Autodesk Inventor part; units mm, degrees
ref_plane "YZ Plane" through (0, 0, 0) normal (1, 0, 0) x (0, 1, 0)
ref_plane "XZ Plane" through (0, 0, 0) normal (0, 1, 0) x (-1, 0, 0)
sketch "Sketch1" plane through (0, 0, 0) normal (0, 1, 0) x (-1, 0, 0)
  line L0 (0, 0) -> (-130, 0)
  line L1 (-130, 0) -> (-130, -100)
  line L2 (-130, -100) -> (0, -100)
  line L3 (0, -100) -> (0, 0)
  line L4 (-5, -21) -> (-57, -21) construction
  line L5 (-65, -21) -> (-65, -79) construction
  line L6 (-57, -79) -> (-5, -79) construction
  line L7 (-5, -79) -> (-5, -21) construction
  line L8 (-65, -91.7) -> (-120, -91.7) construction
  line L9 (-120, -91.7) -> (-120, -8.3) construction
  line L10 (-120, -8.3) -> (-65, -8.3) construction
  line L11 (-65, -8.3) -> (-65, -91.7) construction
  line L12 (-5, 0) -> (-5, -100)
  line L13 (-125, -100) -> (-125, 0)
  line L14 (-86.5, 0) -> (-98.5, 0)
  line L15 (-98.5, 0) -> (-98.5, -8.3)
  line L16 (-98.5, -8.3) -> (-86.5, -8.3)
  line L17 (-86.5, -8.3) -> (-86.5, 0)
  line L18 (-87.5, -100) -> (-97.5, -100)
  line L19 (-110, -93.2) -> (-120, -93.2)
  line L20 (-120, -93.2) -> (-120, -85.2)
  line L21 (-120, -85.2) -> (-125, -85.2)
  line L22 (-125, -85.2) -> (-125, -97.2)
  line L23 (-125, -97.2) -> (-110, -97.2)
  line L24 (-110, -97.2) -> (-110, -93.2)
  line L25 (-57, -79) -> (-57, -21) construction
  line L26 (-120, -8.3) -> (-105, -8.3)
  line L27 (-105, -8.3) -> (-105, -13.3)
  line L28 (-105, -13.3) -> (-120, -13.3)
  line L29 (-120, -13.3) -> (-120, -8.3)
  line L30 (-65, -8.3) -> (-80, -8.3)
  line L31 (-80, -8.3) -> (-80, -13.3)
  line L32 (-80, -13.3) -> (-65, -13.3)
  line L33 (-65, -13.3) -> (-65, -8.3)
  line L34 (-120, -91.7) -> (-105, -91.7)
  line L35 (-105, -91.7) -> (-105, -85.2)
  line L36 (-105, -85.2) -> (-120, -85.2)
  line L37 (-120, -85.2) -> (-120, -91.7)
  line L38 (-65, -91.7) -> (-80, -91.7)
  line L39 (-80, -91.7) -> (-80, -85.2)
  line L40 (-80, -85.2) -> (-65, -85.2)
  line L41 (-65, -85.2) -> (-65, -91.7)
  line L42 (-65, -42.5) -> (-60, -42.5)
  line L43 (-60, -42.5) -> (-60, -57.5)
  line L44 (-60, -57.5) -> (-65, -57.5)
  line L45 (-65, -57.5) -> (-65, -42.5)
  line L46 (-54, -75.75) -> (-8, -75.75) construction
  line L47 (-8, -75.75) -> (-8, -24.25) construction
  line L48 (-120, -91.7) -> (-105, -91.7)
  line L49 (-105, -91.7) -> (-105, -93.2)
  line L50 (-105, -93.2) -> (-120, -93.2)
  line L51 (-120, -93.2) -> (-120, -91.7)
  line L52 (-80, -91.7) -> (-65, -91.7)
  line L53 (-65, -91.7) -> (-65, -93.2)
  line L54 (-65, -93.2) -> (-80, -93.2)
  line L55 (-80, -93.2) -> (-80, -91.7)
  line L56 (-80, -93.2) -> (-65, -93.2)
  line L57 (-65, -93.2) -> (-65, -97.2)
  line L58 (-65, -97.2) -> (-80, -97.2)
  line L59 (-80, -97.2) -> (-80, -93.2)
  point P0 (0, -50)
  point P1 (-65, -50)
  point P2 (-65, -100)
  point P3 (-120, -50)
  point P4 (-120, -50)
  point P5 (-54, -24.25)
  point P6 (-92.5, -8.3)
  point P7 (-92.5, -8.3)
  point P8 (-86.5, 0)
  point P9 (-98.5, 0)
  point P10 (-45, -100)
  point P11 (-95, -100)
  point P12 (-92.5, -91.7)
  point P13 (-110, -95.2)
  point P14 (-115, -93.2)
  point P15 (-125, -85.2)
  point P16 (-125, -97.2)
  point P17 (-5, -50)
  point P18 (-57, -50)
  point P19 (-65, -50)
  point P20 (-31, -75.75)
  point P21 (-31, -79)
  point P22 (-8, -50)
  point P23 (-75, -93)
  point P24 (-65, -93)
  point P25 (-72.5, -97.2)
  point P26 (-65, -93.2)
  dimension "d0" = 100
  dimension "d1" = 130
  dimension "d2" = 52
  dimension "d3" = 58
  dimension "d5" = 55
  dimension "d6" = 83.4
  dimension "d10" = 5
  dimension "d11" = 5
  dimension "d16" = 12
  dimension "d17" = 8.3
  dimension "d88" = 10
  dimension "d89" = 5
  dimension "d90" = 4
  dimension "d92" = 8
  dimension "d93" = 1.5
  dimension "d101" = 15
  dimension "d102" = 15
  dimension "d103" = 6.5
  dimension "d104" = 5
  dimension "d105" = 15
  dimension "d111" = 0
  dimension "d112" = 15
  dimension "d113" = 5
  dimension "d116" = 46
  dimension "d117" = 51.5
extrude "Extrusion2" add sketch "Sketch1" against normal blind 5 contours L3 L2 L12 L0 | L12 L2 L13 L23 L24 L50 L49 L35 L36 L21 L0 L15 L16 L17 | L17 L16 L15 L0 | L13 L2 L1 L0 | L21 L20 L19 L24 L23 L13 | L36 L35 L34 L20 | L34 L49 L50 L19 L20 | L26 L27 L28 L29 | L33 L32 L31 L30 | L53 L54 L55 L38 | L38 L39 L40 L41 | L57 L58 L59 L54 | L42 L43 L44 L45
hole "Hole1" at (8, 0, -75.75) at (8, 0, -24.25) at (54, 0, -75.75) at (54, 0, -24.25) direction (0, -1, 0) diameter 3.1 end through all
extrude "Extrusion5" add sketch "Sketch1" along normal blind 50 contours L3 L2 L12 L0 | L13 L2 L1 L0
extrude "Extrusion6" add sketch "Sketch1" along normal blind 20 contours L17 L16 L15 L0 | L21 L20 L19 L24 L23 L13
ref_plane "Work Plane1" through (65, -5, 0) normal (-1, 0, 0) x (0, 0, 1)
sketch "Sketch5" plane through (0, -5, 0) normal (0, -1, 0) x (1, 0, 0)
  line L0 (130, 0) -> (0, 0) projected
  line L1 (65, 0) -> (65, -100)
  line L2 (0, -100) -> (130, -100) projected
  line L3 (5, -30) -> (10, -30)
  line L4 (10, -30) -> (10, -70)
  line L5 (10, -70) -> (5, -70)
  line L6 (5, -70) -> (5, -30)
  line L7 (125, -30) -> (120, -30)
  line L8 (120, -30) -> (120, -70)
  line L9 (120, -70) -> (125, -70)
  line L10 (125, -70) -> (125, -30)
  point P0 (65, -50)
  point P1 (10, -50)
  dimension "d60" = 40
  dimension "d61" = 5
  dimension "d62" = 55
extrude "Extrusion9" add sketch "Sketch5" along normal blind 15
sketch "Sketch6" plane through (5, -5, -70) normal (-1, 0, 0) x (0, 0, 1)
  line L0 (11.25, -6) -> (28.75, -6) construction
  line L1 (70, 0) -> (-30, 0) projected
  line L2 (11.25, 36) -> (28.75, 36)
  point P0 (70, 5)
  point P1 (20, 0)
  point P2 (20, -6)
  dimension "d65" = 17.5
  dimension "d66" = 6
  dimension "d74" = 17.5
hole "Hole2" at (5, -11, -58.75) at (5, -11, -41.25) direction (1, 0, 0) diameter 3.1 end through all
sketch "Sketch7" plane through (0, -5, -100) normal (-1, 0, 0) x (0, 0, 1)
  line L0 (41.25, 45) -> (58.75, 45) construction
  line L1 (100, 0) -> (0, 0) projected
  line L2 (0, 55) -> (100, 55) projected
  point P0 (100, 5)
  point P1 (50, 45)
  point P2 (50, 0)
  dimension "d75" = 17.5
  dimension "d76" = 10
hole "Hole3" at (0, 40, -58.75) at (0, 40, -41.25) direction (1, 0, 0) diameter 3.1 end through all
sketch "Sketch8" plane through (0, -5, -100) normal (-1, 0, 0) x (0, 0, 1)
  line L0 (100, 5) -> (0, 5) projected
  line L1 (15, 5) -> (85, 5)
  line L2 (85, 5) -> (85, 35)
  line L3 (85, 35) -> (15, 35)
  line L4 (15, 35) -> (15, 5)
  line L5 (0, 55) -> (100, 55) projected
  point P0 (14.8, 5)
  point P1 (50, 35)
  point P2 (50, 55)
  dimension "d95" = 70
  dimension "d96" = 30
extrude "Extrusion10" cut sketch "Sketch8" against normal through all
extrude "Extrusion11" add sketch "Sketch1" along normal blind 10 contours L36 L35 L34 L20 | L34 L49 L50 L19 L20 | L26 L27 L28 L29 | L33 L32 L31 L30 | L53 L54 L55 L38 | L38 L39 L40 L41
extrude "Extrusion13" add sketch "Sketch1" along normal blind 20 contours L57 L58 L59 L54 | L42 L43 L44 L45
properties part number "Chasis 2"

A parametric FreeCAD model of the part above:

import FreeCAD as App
import Part
import Sketcher
from FreeCAD import Vector


def add_polygon(sketch, points):
    """Adds a closed chain of lines whose ends are joined by coincident constraints."""
    first, n = sketch.GeometryCount, len(points)
    for a, b in zip(points, points[1:] + points[:1]):
        sketch.addGeometry(Part.LineSegment(App.Vector(*a, 0), App.Vector(*b, 0)), False)
    for i in range(n):
        sketch.addConstraint(Sketcher.Constraint("Coincident", first + i, 2, first + (i + 1) % n, 1))

doc = App.newDocument("Part")
params = doc.addObject("Spreadsheet::Sheet", "Params")
for row, (alias, value) in enumerate([
    ("sketch1_width", "130 mm"),
    ("sketch1_height", "100 mm"),
    ("pad1_length", "5 mm"),
    ("sketch2_diameter", "3.1 mm"),
    ("hole_diameter", "3.1 mm"),
    ("sketch3_width", "5 mm"),
    ("sketch3_height", "100 mm"),
    ("pad2_length", "50 mm"),
    ("sketch4_width", "12 mm"),
    ("sketch4_width2", "5 mm"),
    ("sketch4_width3", "15 mm"),
    ("sketch4_height", "4 mm"),
    ("sketch4_height2", "8.3 mm"),
    ("pad3_length", "20 mm"),
    ("sketch5_width", "5 mm"),
    ("sketch5_height", "40 mm"),
    ("pad4_length", "15 mm"),
    ("sketch6_diameter", "3.1 mm"),
    ("hole2_diameter", "3.1 mm"),
    ("sketch7_diameter", "3.1 mm"),
    ("hole3_diameter", "3.1 mm"),
    ("sketch8_width", "30 mm"),
    ("sketch8_height", "70 mm"),
    ("sketch9_width", "15 mm"),
    ("sketch9_height", "8 mm"),
    ("sketch9_height2", "5 mm"),
    ("pad5_length", "10 mm"),
    ("sketch10_width", "15 mm"),
    ("sketch10_width2", "5 mm"),
    ("sketch10_height", "4 mm"),
    ("pad6_length", "20 mm"),
], start=1):
    params.set(f"A{row}", alias)
    params.set(f"B{row}", "=" + value)
    params.setAlias(f"B{row}", alias)

body = doc.addObject("PartDesign::Body", "Body")

sketch1 = doc.addObject("Sketcher::SketchObject", "Sketch")
body.addObject(sketch1)
sketch1.AttachmentSupport = (doc.XZ_Plane, [""])
sketch1.MapMode = "FlatFace"
add_polygon(sketch1, [(0, -100), (0, 0), (130, 0), (130, -100)])
sketch1.addConstraint(Sketcher.Constraint("Vertical", 0))
sketch1.addConstraint(Sketcher.Constraint("Horizontal", 1))
sketch1.addConstraint(Sketcher.Constraint("Vertical", 2))
sketch1.addConstraint(Sketcher.Constraint("Horizontal", 3))
sketch1.addConstraint(Sketcher.Constraint("Coincident", 0, 2, -1, 1))
sketch1.addConstraint(Sketcher.Constraint("DistanceX", 1, 1, 1, 2, 130.0))
sketch1.addConstraint(Sketcher.Constraint("DistanceY", 0, 1, 0, 2, 100.0))
sketch1.setExpression("Constraints[9]", "Params.sketch1_width")
sketch1.setExpression("Constraints[10]", "Params.sketch1_height")
pad1 = doc.addObject("PartDesign::Pad", "Pad")
body.addObject(pad1)
pad1.Profile = sketch1
pad1.setExpression("Length", "Params.pad1_length")

sketch2 = doc.addObject("Sketcher::SketchObject", "Sketch001")
body.addObject(sketch2)
sketch2.AttachmentSupport = (doc.XZ_Plane, [""])
sketch2.MapMode = "FlatFace"
sketch2.addGeometry(Part.Circle(Vector(8, -75.8, 0), Vector(0, 0, 1), 1.6), False)
sketch2.addGeometry(Part.Circle(Vector(8, -24.2, 0), Vector(0, 0, 1), 1.6), False)
sketch2.addGeometry(Part.Circle(Vector(54, -75.8, 0), Vector(0, 0, 1), 1.6), False)
sketch2.addGeometry(Part.Circle(Vector(54, -24.2, 0), Vector(0, 0, 1), 1.6), False)
sketch2.addConstraint(Sketcher.Constraint("Equal", 0, 1))
sketch2.addConstraint(Sketcher.Constraint("Equal", 1, 2))
sketch2.addConstraint(Sketcher.Constraint("Equal", 2, 3))
sketch2.addConstraint(Sketcher.Constraint("Horizontal", 0, 3, 2, 3))
sketch2.addConstraint(Sketcher.Constraint("Horizontal", 1, 3, 3, 3))
sketch2.addConstraint(Sketcher.Constraint("Vertical", 0, 3, 1, 3))
sketch2.addConstraint(Sketcher.Constraint("Vertical", 2, 3, 3, 3))
sketch2.addConstraint(Sketcher.Constraint("Diameter", 0, 3.1))
sketch2.addConstraint(Sketcher.Constraint("DistanceX", -1, 1, 0, 3, 8.0))
sketch2.addConstraint(Sketcher.Constraint("DistanceX", -1, 1, 2, 3, 54.0))
sketch2.addConstraint(Sketcher.Constraint("DistanceY", 0, 3, 1, 3, 51.5))
sketch2.addConstraint(Sketcher.Constraint("DistanceY", 0, 3, -1, 1, 75.75))
sketch2.setExpression("Constraints[7]", "Params.sketch2_diameter")
doc.recompute()
hole = doc.addObject("PartDesign::Hole", "Hole")
body.addObject(hole)
hole.Profile = sketch2
hole.ThreadType = "None"
hole.setExpression("Diameter", "Params.hole_diameter")
hole.DepthType = "ThroughAll"
hole.Reversed = True

sketch3 = doc.addObject("Sketcher::SketchObject", "Sketch002")
body.addObject(sketch3)
sketch3.AttachmentSupport = (doc.XZ_Plane, [""])
sketch3.MapMode = "FlatFace"
add_polygon(sketch3, [(0, -100), (0, 0), (5, 0), (5, -100)])
add_polygon(sketch3, [(125, -100), (125, 0), (130, 0), (130, -100)])
sketch3.addConstraint(Sketcher.Constraint("Vertical", 0))
sketch3.addConstraint(Sketcher.Constraint("Horizontal", 1))
sketch3.addConstraint(Sketcher.Constraint("Vertical", 2))
sketch3.addConstraint(Sketcher.Constraint("Horizontal", 3))
sketch3.addConstraint(Sketcher.Constraint("Vertical", 4))
sketch3.addConstraint(Sketcher.Constraint("Horizontal", 5))
sketch3.addConstraint(Sketcher.Constraint("Vertical", 6))
sketch3.addConstraint(Sketcher.Constraint("Horizontal", 7))
sketch3.addConstraint(Sketcher.Constraint("Coincident", 0, 2, -1, 1))
sketch3.addConstraint(Sketcher.Constraint("PointOnObject", 4, 2, -1))
sketch3.addConstraint(Sketcher.Constraint("Horizontal", 3, 2, 6, 2))
sketch3.addConstraint(Sketcher.Constraint("Equal", 3, 5))
sketch3.addConstraint(Sketcher.Constraint("DistanceX", 1, 1, 1, 2, 5.0))
sketch3.addConstraint(Sketcher.Constraint("DistanceY", 0, 1, 0, 2, 100.0))
sketch3.addConstraint(Sketcher.Constraint("DistanceX", -1, 1, 5, 2, 130.0))
sketch3.setExpression("Constraints[20]", "Params.sketch3_width")
sketch3.setExpression("Constraints[21]", "Params.sketch3_height")
pad2 = doc.addObject("PartDesign::Pad", "Pad001")
body.addObject(pad2)
pad2.Profile = sketch3
pad2.setExpression("Length", "Params.pad2_length")
pad2.Reversed = True

sketch4 = doc.addObject("Sketcher::SketchObject", "Sketch003")
body.addObject(sketch4)
sketch4.AttachmentSupport = (doc.XZ_Plane, [""])
sketch4.MapMode = "FlatFace"
add_polygon(sketch4, [(86.5, -8.3), (86.5, 0), (98.5, 0), (98.5, -8.3)])
add_polygon(sketch4, [(120, -85.2), (125, -85.2), (125, -97.2), (110, -97.2), (110, -93.2), (120, -93.2)])
sketch4.addConstraint(Sketcher.Constraint("Vertical", 0))
sketch4.addConstraint(Sketcher.Constraint("Horizontal", 1))
sketch4.addConstraint(Sketcher.Constraint("Vertical", 2))
sketch4.addConstraint(Sketcher.Constraint("Horizontal", 3))
sketch4.addConstraint(Sketcher.Constraint("Horizontal", 4))
sketch4.addConstraint(Sketcher.Constraint("Vertical", 5))
sketch4.addConstraint(Sketcher.Constraint("Horizontal", 6))
sketch4.addConstraint(Sketcher.Constraint("Vertical", 7))
sketch4.addConstraint(Sketcher.Constraint("Horizontal", 8))
sketch4.addConstraint(Sketcher.Constraint("Vertical", 9))
sketch4.addConstraint(Sketcher.Constraint("PointOnObject", 0, 2, -1))
sketch4.addConstraint(Sketcher.Constraint("Equal", 3, 5))
sketch4.addConstraint(Sketcher.Constraint("DistanceX", 1, 1, 1, 2, 12.0))
sketch4.addConstraint(Sketcher.Constraint("DistanceX", 4, 1, 4, 2, 5.0))
sketch4.addConstraint(Sketcher.Constraint("DistanceX", 6, 2, 6, 1, 15.0))
sketch4.addConstraint(Sketcher.Constraint("DistanceY", 7, 1, 7, 2, 4.0))
sketch4.addConstraint(Sketcher.Constraint("DistanceY", 0, 1, 0, 2, 8.3))
sketch4.addConstraint(Sketcher.Constraint("DistanceX", -1, 1, 4, 2, 125.0))
sketch4.addConstraint(Sketcher.Constraint("DistanceX", -1, 1, 0, 2, 86.5))
sketch4.addConstraint(Sketcher.Constraint("DistanceY", 4, 2, -1, 1, 85.2))
sketch4.setExpression("Constraints[22]", "Params.sketch4_width")
sketch4.setExpression("Constraints[23]", "Params.sketch4_width2")
sketch4.setExpression("Constraints[24]", "Params.sketch4_width3")
sketch4.setExpression("Constraints[25]", "Params.sketch4_height")
sketch4.setExpression("Constraints[26]", "Params.sketch4_height2")
pad3 = doc.addObject("PartDesign::Pad", "Pad002")
body.addObject(pad3)
pad3.Profile = sketch4
pad3.setExpression("Length", "Params.pad3_length")
pad3.Reversed = True

sketch5 = doc.addObject("Sketcher::SketchObject", "Sketch004")
body.addObject(sketch5)
sketch5.AttachmentSupport = (doc.XZ_Plane, [""])
sketch5.MapMode = "FlatFace"
sketch5.AttachmentOffset = App.Placement(Vector(0, 0, 5), App.Rotation())
add_polygon(sketch5, [(10, -30), (5, -30), (5, -70), (10, -70)])
add_polygon(sketch5, [(125, -70), (125, -30), (120, -30), (120, -70)])
sketch5.addConstraint(Sketcher.Constraint("Horizontal", 0))
sketch5.addConstraint(Sketcher.Constraint("Vertical", 1))
sketch5.addConstraint(Sketcher.Constraint("Horizontal", 2))
sketch5.addConstraint(Sketcher.Constraint("Vertical", 3))
sketch5.addConstraint(Sketcher.Constraint("Vertical", 4))
sketch5.addConstraint(Sketcher.Constraint("Horizontal", 5))
sketch5.addConstraint(Sketcher.Constraint("Vertical", 6))
sketch5.addConstraint(Sketcher.Constraint("Horizontal", 7))
sketch5.addConstraint(Sketcher.Constraint("Horizontal", 3, 2, 4, 2))
sketch5.addConstraint(Sketcher.Constraint("Horizontal", 2, 2, 6, 2))
sketch5.addConstraint(Sketcher.Constraint("Equal", 2, 5))
sketch5.addConstraint(Sketcher.Constraint("DistanceX", 0, 2, 0, 1, 5.0))
sketch5.addConstraint(Sketcher.Constraint("DistanceY", 1, 2, 1, 1, 40.0))
sketch5.addConstraint(Sketcher.Constraint("DistanceX", -1, 1, 0, 2, 5.0))
sketch5.addConstraint(Sketcher.Constraint("DistanceY", 0, 2, -1, 1, 30.0))
sketch5.addConstraint(Sketcher.Constraint("DistanceX", -1, 1, 4, 2, 125.0))
sketch5.setExpression("Constraints[19]", "Params.sketch5_width")
sketch5.setExpression("Constraints[20]", "Params.sketch5_height")
pad4 = doc.addObject("PartDesign::Pad", "Pad003")
body.addObject(pad4)
pad4.Profile = sketch5
pad4.setExpression("Length", "Params.pad4_length")

sketch6 = doc.addObject("Sketcher::SketchObject", "Sketch005")
body.addObject(sketch6)
sketch6.AttachmentSupport = (doc.YZ_Plane, [""])
sketch6.MapMode = "FlatFace"
sketch6.AttachmentOffset = App.Placement(Vector(0, 0, 5), App.Rotation())
sketch6.addGeometry(Part.Circle(Vector(-11, -58.8, 0), Vector(0, 0, 1), 1.6), False)
sketch6.addGeometry(Part.Circle(Vector(-11, -41.2, 0), Vector(0, 0, 1), 1.6), False)
sketch6.addConstraint(Sketcher.Constraint("Equal", 0, 1))
sketch6.addConstraint(Sketcher.Constraint("Vertical", 0, 3, 1, 3))
sketch6.addConstraint(Sketcher.Constraint("Diameter", 0, 3.1))
sketch6.addConstraint(Sketcher.Constraint("DistanceX", 0, 3, -1, 1, 11.0))
sketch6.addConstraint(Sketcher.Constraint("DistanceY", 0, 3, 1, 3, 17.5))
sketch6.addConstraint(Sketcher.Constraint("DistanceY", 0, 3, -1, 1, 58.75))
sketch6.setExpression("Constraints[2]", "Params.sketch6_diameter")
doc.recompute()
hole2 = doc.addObject("PartDesign::Hole", "Hole001")
body.addObject(hole2)
hole2.Profile = sketch6
hole2.ThreadType = "None"
hole2.setExpression("Diameter", "Params.hole2_diameter")
hole2.DepthType = "ThroughAll"
hole2.Reversed = True

sketch7 = doc.addObject("Sketcher::SketchObject", "Sketch006")
body.addObject(sketch7)
sketch7.AttachmentSupport = (doc.YZ_Plane, [""])
sketch7.MapMode = "FlatFace"
sketch7.addGeometry(Part.Circle(Vector(40, -58.8, 0), Vector(0, 0, 1), 1.6), False)
sketch7.addGeometry(Part.Circle(Vector(40, -41.2, 0), Vector(0, 0, 1), 1.6), False)
sketch7.addConstraint(Sketcher.Constraint("Equal", 0, 1))
sketch7.addConstraint(Sketcher.Constraint("Vertical", 0, 3, 1, 3))
sketch7.addConstraint(Sketcher.Constraint("Diameter", 0, 3.1))
sketch7.addConstraint(Sketcher.Constraint("DistanceX", -1, 1, 0, 3, 40.0))
sketch7.addConstraint(Sketcher.Constraint("DistanceY", 0, 3, 1, 3, 17.5))
sketch7.addConstraint(Sketcher.Constraint("DistanceY", 0, 3, -1, 1, 58.75))
sketch7.setExpression("Constraints[2]", "Params.sketch7_diameter")
doc.recompute()
hole3 = doc.addObject("PartDesign::Hole", "Hole002")
body.addObject(hole3)
hole3.Profile = sketch7
hole3.ThreadType = "None"
hole3.setExpression("Diameter", "Params.hole3_diameter")
hole3.DepthType = "ThroughAll"
hole3.Reversed = True

sketch8 = doc.addObject("Sketcher::SketchObject", "Sketch007")
body.addObject(sketch8)
sketch8.AttachmentSupport = (doc.YZ_Plane, [""])
sketch8.MapMode = "FlatFace"
add_polygon(sketch8, [(0, -85), (0, -15), (30, -15), (30, -85)])
sketch8.addConstraint(Sketcher.Constraint("Vertical", 0))
sketch8.addConstraint(Sketcher.Constraint("Horizontal", 1))
sketch8.addConstraint(Sketcher.Constraint("Vertical", 2))
sketch8.addConstraint(Sketcher.Constraint("Horizontal", 3))
sketch8.addConstraint(Sketcher.Constraint("PointOnObject", 0, 2, -2))
sketch8.addConstraint(Sketcher.Constraint("DistanceX", 1, 1, 1, 2, 30.0))
sketch8.addConstraint(Sketcher.Constraint("DistanceY", 0, 1, 0, 2, 70.0))
sketch8.addConstraint(Sketcher.Constraint("DistanceY", 0, 2, -1, 1, 15.0))
sketch8.setExpression("Constraints[9]", "Params.sketch8_width")
sketch8.setExpression("Constraints[10]", "Params.sketch8_height")
pocket1 = doc.addObject("PartDesign::Pocket", "Pocket")
body.addObject(pocket1)
pocket1.Profile = sketch8
pocket1.Type = "ThroughAll"
pocket1.Reversed = True

sketch9 = doc.addObject("Sketcher::SketchObject", "Sketch008")
body.addObject(sketch9)
sketch9.AttachmentSupport = (doc.XZ_Plane, [""])
sketch9.MapMode = "FlatFace"
add_polygon(sketch9, [(105, -85), (120, -85), (120, -93), (105, -93)])
add_polygon(sketch9, [(105, -8), (120, -8), (120, -13), (105, -13)])
add_polygon(sketch9, [(65, -13), (65, -8), (80, -8), (80, -13)])
add_polygon(sketch9, [(65, -93), (65, -85), (80, -85), (80, -93)])
sketch9.addConstraint(Sketcher.Constraint("Horizontal", 0))
sketch9.addConstraint(Sketcher.Constraint("Vertical", 1))
sketch9.addConstraint(Sketcher.Constraint("Horizontal", 2))
sketch9.addConstraint(Sketcher.Constraint("Vertical", 3))
sketch9.addConstraint(Sketcher.Constraint("Horizontal", 4))
sketch9.addConstraint(Sketcher.Constraint("Vertical", 5))
sketch9.addConstraint(Sketcher.Constraint("Horizontal", 6))
sketch9.addConstraint(Sketcher.Constraint("Vertical", 7))
sketch9.addConstraint(Sketcher.Constraint("Vertical", 8))
sketch9.addConstraint(Sketcher.Constraint("Horizontal", 9))
sketch9.addConstraint(Sketcher.Constraint("Vertical", 10))
sketch9.addConstraint(Sketcher.Constraint("Horizontal", 11))
sketch9.addConstraint(Sketcher.Constraint("Vertical", 12))
sketch9.addConstraint(Sketcher.Constraint("Horizontal", 13))
sketch9.addConstraint(Sketcher.Constraint("Vertical", 14))
sketch9.addConstraint(Sketcher.Constraint("Horizontal", 15))
sketch9.addConstraint(Sketcher.Constraint("Horizontal", 7, 2, 8, 2))
sketch9.addConstraint(Sketcher.Constraint("Horizontal", 6, 2, 10, 2))
sketch9.addConstraint(Sketcher.Constraint("Horizontal", 3, 2, 12, 2))
sketch9.addConstraint(Sketcher.Constraint("Horizontal", 2, 2, 14, 2))
sketch9.addConstraint(Sketcher.Constraint("Vertical", 1, 2, 4, 2))
sketch9.addConstraint(Sketcher.Constraint("Vertical", 3, 2, 6, 2))
sketch9.addConstraint(Sketcher.Constraint("Vertical", 11, 2, 12, 2))
sketch9.addConstraint(Sketcher.Constraint("Vertical", 10, 2, 13, 2))
sketch9.addConstraint(Sketcher.Constraint("Equal", 6, 9))
sketch9.addConstraint(Sketcher.Constraint("DistanceX", 0, 1, 0, 2, 15.0))
sketch9.addConstraint(Sketcher.Constraint("DistanceY", 1, 2, 1, 1, 8.0))
sketch9.addConstraint(Sketcher.Constraint("DistanceY", 5, 2, 5, 1, 5.0))
sketch9.addConstraint(Sketcher.Constraint("DistanceX", 8, 2, 4, 2, 55.0))
sketch9.addConstraint(Sketcher.Constraint("DistanceY", 4, 2, -1, 1, 8.3))
sketch9.addConstraint(Sketcher.Constraint("DistanceX", -1, 1, 0, 2, 120.0))
sketch9.addConstraint(Sketcher.Constraint("DistanceY", 0, 2, -1, 1, 85.2))
sketch9.setExpression("Constraints[41]", "Params.sketch9_width")
sketch9.setExpression("Constraints[42]", "Params.sketch9_height")
sketch9.setExpression("Constraints[43]", "Params.sketch9_height2")
pad5 = doc.addObject("PartDesign::Pad", "Pad004")
body.addObject(pad5)
pad5.Profile = sketch9
pad5.setExpression("Length", "Params.pad5_length")
pad5.Reversed = True

sketch10 = doc.addObject("Sketcher::SketchObject", "Sketch009")
body.addObject(sketch10)
sketch10.AttachmentSupport = (doc.XZ_Plane, [""])
sketch10.MapMode = "FlatFace"
add_polygon(sketch10, [(65, -97.2), (65, -93.2), (80, -93.2), (80, -97.2)])
add_polygon(sketch10, [(60, -42.5), (65, -42.5), (65, -57.5), (60, -57.5)])
sketch10.addConstraint(Sketcher.Constraint("Vertical", 0))
sketch10.addConstraint(Sketcher.Constraint("Horizontal", 1))
sketch10.addConstraint(Sketcher.Constraint("Vertical", 2))
sketch10.addConstraint(Sketcher.Constraint("Horizontal", 3))
sketch10.addConstraint(Sketcher.Constraint("Horizontal", 4))
sketch10.addConstraint(Sketcher.Constraint("Vertical", 5))
sketch10.addConstraint(Sketcher.Constraint("Horizontal", 6))
sketch10.addConstraint(Sketcher.Constraint("Vertical", 7))
sketch10.addConstraint(Sketcher.Constraint("Vertical", 3, 2, 4, 2))
sketch10.addConstraint(Sketcher.Constraint("Equal", 3, 5))
sketch10.addConstraint(Sketcher.Constraint("DistanceX", 1, 1, 1, 2, 15.0))
sketch10.addConstraint(Sketcher.Constraint("DistanceX", 4, 1, 4, 2, 5.0))
sketch10.addConstraint(Sketcher.Constraint("DistanceY", 0, 1, 0, 2, 4.0))
sketch10.addConstraint(Sketcher.Constraint("DistanceX", -1, 1, 0, 2, 65.0))
sketch10.addConstraint(Sketcher.Constraint("DistanceY", 0, 2, -1, 1, 93.2))
sketch10.addConstraint(Sketcher.Constraint("DistanceY", 4, 2, -1, 1, 42.5))
sketch10.setExpression("Constraints[18]", "Params.sketch10_width")
sketch10.setExpression("Constraints[19]", "Params.sketch10_width2")
sketch10.setExpression("Constraints[20]", "Params.sketch10_height")
pad6 = doc.addObject("PartDesign::Pad", "Pad005")
body.addObject(pad6)
pad6.Profile = sketch10
pad6.setExpression("Length", "Params.pad6_length")
pad6.Reversed = True

doc.recompute()
